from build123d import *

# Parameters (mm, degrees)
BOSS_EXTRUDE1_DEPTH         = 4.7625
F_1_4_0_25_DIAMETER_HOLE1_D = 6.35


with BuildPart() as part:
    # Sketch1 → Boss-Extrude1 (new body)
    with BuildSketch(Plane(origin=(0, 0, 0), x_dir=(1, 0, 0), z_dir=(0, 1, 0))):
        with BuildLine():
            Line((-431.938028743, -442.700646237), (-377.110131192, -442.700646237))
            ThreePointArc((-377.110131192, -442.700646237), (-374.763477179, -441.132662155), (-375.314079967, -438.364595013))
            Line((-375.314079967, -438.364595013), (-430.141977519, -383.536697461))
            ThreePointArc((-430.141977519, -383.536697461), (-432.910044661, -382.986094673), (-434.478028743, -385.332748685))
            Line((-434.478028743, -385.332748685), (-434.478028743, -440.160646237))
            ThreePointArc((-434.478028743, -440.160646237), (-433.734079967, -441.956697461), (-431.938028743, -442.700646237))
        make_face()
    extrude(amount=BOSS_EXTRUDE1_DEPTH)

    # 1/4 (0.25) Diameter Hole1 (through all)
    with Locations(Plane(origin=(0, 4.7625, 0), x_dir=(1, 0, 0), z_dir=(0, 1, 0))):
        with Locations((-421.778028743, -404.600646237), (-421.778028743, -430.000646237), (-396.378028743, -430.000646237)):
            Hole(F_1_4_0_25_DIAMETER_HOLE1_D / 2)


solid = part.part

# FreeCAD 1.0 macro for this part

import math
import FreeCAD as App
import Part
import Sketcher

V = App.Vector
Q = App.Units.Quantity

doc = App.newDocument("Part")
body = doc.addObject("PartDesign::Body", "Body")

# Sketch on XZ plane
sketch1 = body.newObject("Sketcher::SketchObject", "Sketch")
sketch1.AttachmentSupport = (doc.getObject("XZ_Plane"), [""])
sketch1.MapMode = "FlatFace"
sketch1.addGeometry(Part.LineSegment(V(-431.938029, 442.700646, 0), V(-377.110131, 442.700646, 0)), False)
sketch1.addGeometry(Part.ArcOfCircle(Part.Circle(V(-377.110131, 440.160646, 0), V(0, 0, 1), 2.54), math.radians(-45), math.radians(90)), False)
sketch1.addGeometry(Part.LineSegment(V(-375.31408, 438.364595, 0), V(-430.141978, 383.536697, 0)), False)
sketch1.addGeometry(Part.ArcOfCircle(Part.Circle(V(-431.938029, 385.332749, 0), V(0, 0, 1), 2.54), math.radians(-180), math.radians(-45)), False)
sketch1.addGeometry(Part.LineSegment(V(-434.478029, 385.332749, 0), V(-434.478029, 440.160646, 0)), False)
sketch1.addGeometry(Part.ArcOfCircle(Part.Circle(V(-431.938029, 440.160646, 0), V(0, 0, 1), 2.54), math.radians(90), math.radians(180)), False)
sketch1.addConstraint(Sketcher.Constraint("Tangent", 0, 2, 1, 2))
sketch1.addConstraint(Sketcher.Constraint("Tangent", 1, 1, 2, 1))
sketch1.addConstraint(Sketcher.Constraint("Tangent", 2, 2, 3, 2))
sketch1.addConstraint(Sketcher.Constraint("Tangent", 3, 1, 4, 1))
sketch1.addConstraint(Sketcher.Constraint("Tangent", 4, 2, 5, 2))
sketch1.addConstraint(Sketcher.Constraint("Tangent", 5, 1, 0, 1))
sketch1.addConstraint(Sketcher.Constraint("Horizontal", 0))
sketch1.addConstraint(Sketcher.Constraint("Vertical", 4))
sketch1.addConstraint(Sketcher.Constraint("Equal", 1, 3))
sketch1.addConstraint(Sketcher.Constraint("Equal", 3, 5))
sketch1.addConstraint(Sketcher.Constraint("Equal", 0, 4))
sketch1.addConstraint(Sketcher.Constraint("Radius", 1, Q("0.1 in")))
sketch1.addConstraint(Sketcher.Constraint("DistanceX", 0, 1, 0, 2, 54.827898))
sketch1.addConstraint(Sketcher.Constraint("DistanceX", 1, 3, -1, 1, 377.110131))
sketch1.addConstraint(Sketcher.Constraint("DistanceY", -1, 1, 3, 3, 385.332749))
pad1 = body.newObject("PartDesign::Pad", "Pad")
pad1.Profile = sketch1
pad1.Length = Q("0.1875 in")
pad1.Reversed = True

# Sketch on XZ plane
sketch2 = body.newObject("Sketcher::SketchObject", "Sketch001")
sketch2.AttachmentSupport = (doc.getObject("XZ_Plane"), [""])
sketch2.MapMode = "FlatFace"
sketch2.AttachmentOffset = App.Placement(V(0, 0, -0.1875 * 25.4), App.Rotation())
sketch2.addGeometry(Part.Circle(V(-421.778029, 404.600646, 0), V(0, 0, 1), 3.175), False)
sketch2.addGeometry(Part.Circle(V(-421.778029, 430.000646, 0), V(0, 0, 1), 3.175), False)
sketch2.addGeometry(Part.Circle(V(-396.378029, 430.000646, 0), V(0, 0, 1), 3.175), False)
sketch2.addConstraint(Sketcher.Constraint("Equal", 0, 1))
sketch2.addConstraint(Sketcher.Constraint("Equal", 1, 2))
sketch2.addConstraint(Sketcher.Constraint("Horizontal", 1, 3, 2, 3))
sketch2.addConstraint(Sketcher.Constraint("Vertical", 0, 3, 1, 3))
sketch2.addConstraint(Sketcher.Constraint("Diameter", 0, Q("0.25 in")))
sketch2.addConstraint(Sketcher.Constraint("DistanceY", 0, 3, 1, 3, Q("1 in")))
sketch2.addConstraint(Sketcher.Constraint("DistanceX", 1, 3, 2, 3, Q("1 in")))
sketch2.addConstraint(Sketcher.Constraint("DistanceX", 0, 3, -1, 1, 421.778029))
sketch2.addConstraint(Sketcher.Constraint("DistanceY", -1, 1, 0, 3, 404.600646))
doc.recompute()
hole = body.newObject("PartDesign::Hole", "Hole")
hole.Profile = sketch2
hole.ThreadType = "None"
hole.Diameter = Q("0.25 in")
hole.DepthType = "ThroughAll"
hole.Reversed = True

doc.recompute()
